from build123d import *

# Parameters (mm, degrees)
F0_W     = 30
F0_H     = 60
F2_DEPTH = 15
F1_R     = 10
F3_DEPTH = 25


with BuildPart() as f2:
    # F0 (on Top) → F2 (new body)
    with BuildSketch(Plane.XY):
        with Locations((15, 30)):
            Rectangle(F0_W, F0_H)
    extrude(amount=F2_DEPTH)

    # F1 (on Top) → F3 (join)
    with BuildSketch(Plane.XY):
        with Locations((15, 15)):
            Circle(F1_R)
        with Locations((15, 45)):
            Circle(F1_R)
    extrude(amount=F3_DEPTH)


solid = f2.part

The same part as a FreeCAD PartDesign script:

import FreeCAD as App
import Part
import Sketcher
Q = App.Units.Quantity


def add_polygon(sketch, points):
    """Adds a closed chain of lines whose ends are joined by coincident constraints."""
    first, n = sketch.GeometryCount, len(points)
    for a, b in zip(points, points[1:] + points[:1]):
        sketch.addGeometry(Part.LineSegment(App.Vector(*a, 0), App.Vector(*b, 0)), False)
    for i in range(n):
        sketch.addConstraint(Sketcher.Constraint("Coincident", first + i, 2, first + (i + 1) % n, 1))

doc = App.newDocument("Part")
body = doc.addObject("PartDesign::Body", "Body")

# Sketch on XY plane
sketch1 = body.newObject("Sketcher::SketchObject", "Sketch")
sketch1.AttachmentSupport = (doc.getObject("XY_Plane"), [""])
sketch1.MapMode = "FlatFace"
add_polygon(sketch1, [(0, 60), (0, 0), (30, 0), (30, 60)])  # lines 0-3
sketch1.addConstraint(Sketcher.Constraint("Vertical", 0))
sketch1.addConstraint(Sketcher.Constraint("Horizontal", 1))
sketch1.addConstraint(Sketcher.Constraint("Vertical", 2))
sketch1.addConstraint(Sketcher.Constraint("Horizontal", 3))
sketch1.addConstraint(Sketcher.Constraint("Coincident", 0, 2, -1, 1))
sketch1.addConstraint(Sketcher.Constraint("DistanceX", 1, 1, 1, 2, Q("30 mm")))
sketch1.addConstraint(Sketcher.Constraint("DistanceY", 0, 2, 0, 1, Q("60 mm")))
pad1 = body.newObject("PartDesign::Pad", "Pad")
pad1.Profile = sketch1
pad1.Length = 15

# Sketch on XY plane
sketch2 = body.newObject("Sketcher::SketchObject", "Sketch001")
sketch2.AttachmentSupport = (doc.getObject("XY_Plane"), [""])
sketch2.MapMode = "FlatFace"
sketch2.addGeometry(Part.Circle(App.Vector(15, 15, 0), App.Vector(0, 0, 1), 10), False)
sketch2.addGeometry(Part.Circle(App.Vector(15, 45, 0), App.Vector(0, 0, 1), 10), False)
sketch2.addConstraint(Sketcher.Constraint("Equal", 0, 1))
sketch2.addConstraint(Sketcher.Constraint("Vertical", 0, 3, 1, 3))
sketch2.addConstraint(Sketcher.Constraint("Diameter", 0, Q("20 mm")))
sketch2.addConstraint(Sketcher.Constraint("DistanceX", -1, 1, 0, 3, Q("15 mm")))
sketch2.addConstraint(Sketcher.Constraint("DistanceY", -1, 1, 0, 3, Q("15 mm")))
sketch2.addConstraint(Sketcher.Constraint("DistanceY", -1, 1, 1, 3, Q("45 mm")))
pad2 = body.newObject("PartDesign::Pad", "Pad001")
pad2.Profile = sketch2
pad2.Length = 25

doc.recompute()
